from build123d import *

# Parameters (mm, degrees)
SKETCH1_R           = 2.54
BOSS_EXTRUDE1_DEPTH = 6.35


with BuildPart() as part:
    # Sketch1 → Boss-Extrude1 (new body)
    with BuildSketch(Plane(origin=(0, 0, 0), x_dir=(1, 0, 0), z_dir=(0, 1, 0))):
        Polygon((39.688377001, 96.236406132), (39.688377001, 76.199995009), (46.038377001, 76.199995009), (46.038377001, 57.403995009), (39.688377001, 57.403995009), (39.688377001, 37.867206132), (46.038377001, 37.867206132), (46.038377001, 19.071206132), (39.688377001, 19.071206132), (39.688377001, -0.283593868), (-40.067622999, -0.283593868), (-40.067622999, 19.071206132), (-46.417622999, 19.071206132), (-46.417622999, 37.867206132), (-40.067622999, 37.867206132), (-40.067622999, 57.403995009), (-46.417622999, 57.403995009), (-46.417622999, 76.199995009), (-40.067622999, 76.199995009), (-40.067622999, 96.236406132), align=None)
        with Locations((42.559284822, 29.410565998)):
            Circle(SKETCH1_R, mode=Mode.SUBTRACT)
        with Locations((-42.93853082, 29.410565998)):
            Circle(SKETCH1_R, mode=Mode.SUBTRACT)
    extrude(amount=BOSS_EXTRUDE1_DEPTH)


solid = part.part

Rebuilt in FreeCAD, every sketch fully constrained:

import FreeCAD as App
import Part
import Sketcher

V = App.Vector
Q = App.Units.Quantity


def add_polygon(sketch, points):
    """Adds a closed chain of lines whose ends are joined by coincident constraints."""
    first, n = sketch.GeometryCount, len(points)
    for a, b in zip(points, points[1:] + points[:1]):
        sketch.addGeometry(Part.LineSegment(App.Vector(*a, 0), App.Vector(*b, 0)), False)
    for i in range(n):
        sketch.addConstraint(Sketcher.Constraint("Coincident", first + i, 2, first + (i + 1) % n, 1))

doc = App.newDocument("Part")
params = doc.addObject("Spreadsheet::Sheet", "Params")
for row, (alias, value) in enumerate([
    ("sketch1_diameter", "0.2 in"),
    ("sketch1_width", "3.14 in"),
    ("sketch1_width2", "0.25 in"),
    ("sketch1_height", "0.74 in"),
    ("sketch1_height2", "0.762 in"),
    ("pad1_length", "0.25 in"),
], start=1):
    params.set(f"A{row}", alias)
    params.set(f"B{row}", "=" + value)
    params.setAlias(f"B{row}", alias)

body = doc.addObject("PartDesign::Body", "Body")

# Sketch on XZ plane
sketch1 = body.newObject("Sketcher::SketchObject", "Sketch")
sketch1.AttachmentSupport = (doc.getObject("XZ_Plane"), [""])
sketch1.MapMode = "FlatFace"
add_polygon(sketch1, [(39.7, -76.2), (39.7, -96.2), (-40.1, -96.2), (-40.1, -76.2), (-46.4, -76.2), (-46.4, -57.4), (-40.1, -57.4), (-40.1, -37.9), (-46.4, -37.9), (-46.4, -19.1), (-40.1, -19.1), (-40.1, 0.3), (39.7, 0.3), (39.7, -19.1), (46, -19.1), (46, -37.9), (39.7, -37.9), (39.7, -57.4), (46, -57.4), (46, -76.2)])  # lines 0-19
sketch1.addGeometry(Part.Circle(V(42.6, -29.4, 0), V(0, 0, 1), 2.5), False)  # 20
sketch1.addGeometry(Part.Circle(V(-42.9, -29.4, 0), V(0, 0, 1), 2.5), False)  # 21
sketch1.addConstraint([
    Sketcher.Constraint("Vertical", 0),
    Sketcher.Constraint("Horizontal", 1),
    Sketcher.Constraint("Vertical", 2),
    Sketcher.Constraint("Horizontal", 3),
    Sketcher.Constraint("Vertical", 4),
    Sketcher.Constraint("Horizontal", 5),
    Sketcher.Constraint("Vertical", 6),
    Sketcher.Constraint("Horizontal", 7),
    Sketcher.Constraint("Vertical", 8),
    Sketcher.Constraint("Horizontal", 9),
    Sketcher.Constraint("Vertical", 10),
    Sketcher.Constraint("Horizontal", 11),
    Sketcher.Constraint("Vertical", 12),
    Sketcher.Constraint("Horizontal", 13),
    Sketcher.Constraint("Vertical", 14),
    Sketcher.Constraint("Horizontal", 15),
    Sketcher.Constraint("Vertical", 16),
    Sketcher.Constraint("Horizontal", 17),
    Sketcher.Constraint("Vertical", 18),
    Sketcher.Constraint("Horizontal", 19),
    Sketcher.Constraint("Equal", 20, 21),
    Sketcher.Constraint("Horizontal", 20, 3, 21, 3),
    Sketcher.Constraint("Horizontal", 9, 2, 12, 2),
    Sketcher.Constraint("Horizontal", 7, 2, 14, 2),
    Sketcher.Constraint("Horizontal", 5, 2, 16, 2),
    Sketcher.Constraint("Horizontal", 3, 2, 18, 2),
    Sketcher.Constraint("Vertical", 2, 2, 5, 2),
    Sketcher.Constraint("Vertical", 4, 2, 7, 2),
    Sketcher.Constraint("Vertical", 6, 2, 9, 2),
    Sketcher.Constraint("Vertical", 0, 2, 11, 2),
    Sketcher.Constraint("Vertical", 12, 2, 15, 2),
    Sketcher.Constraint("Vertical", 14, 2, 17, 2),
    Sketcher.Constraint("Equal", 9, 13),
    Sketcher.Constraint("Equal", 4, 8),
    Sketcher.Constraint("Diameter", 20, Q("0.2 in")),
    Sketcher.Constraint("DistanceY", 2, 2, -1, 1, Q("2.9999998 in")),
    Sketcher.Constraint("DistanceX", 1, 2, 1, 1, Q("3.14 in")),
    Sketcher.Constraint("DistanceX", 3, 2, 3, 1, Q("0.25 in")),
    Sketcher.Constraint("DistanceY", 4, 1, 4, 2, Q("0.74 in")),
    Sketcher.Constraint("DistanceY", 10, 1, 10, 2, Q("0.762 in")),
    Sketcher.Constraint("DistanceY", 0, 2, 12, 2, Q("3.038 in")),
    Sketcher.Constraint("DistanceY", 0, 2, 0, 1, 20.036411),
    Sketcher.Constraint("DistanceX", 21, 3, -1, 1, 42.938531),
    Sketcher.Constraint("DistanceY", 0, 2, 20, 3, 66.82584),
    Sketcher.Constraint("DistanceX", -1, 1, 20, 3, 42.559285),
    Sketcher.Constraint("DistanceX", -1, 1, 0, 2, 39.688377),
])
sketch1.setExpression("Constraints[54]", "Params.sketch1_diameter")
sketch1.setExpression("Constraints[56]", "Params.sketch1_width")
sketch1.setExpression("Constraints[57]", "Params.sketch1_width2")
sketch1.setExpression("Constraints[58]", "Params.sketch1_height")
sketch1.setExpression("Constraints[59]", "Params.sketch1_height2")
pad1 = body.newObject("PartDesign::Pad", "Pad")
pad1.Profile = sketch1
pad1.setExpression("Length", "Params.pad1_length")
pad1.Reversed = True

doc.recompute()
